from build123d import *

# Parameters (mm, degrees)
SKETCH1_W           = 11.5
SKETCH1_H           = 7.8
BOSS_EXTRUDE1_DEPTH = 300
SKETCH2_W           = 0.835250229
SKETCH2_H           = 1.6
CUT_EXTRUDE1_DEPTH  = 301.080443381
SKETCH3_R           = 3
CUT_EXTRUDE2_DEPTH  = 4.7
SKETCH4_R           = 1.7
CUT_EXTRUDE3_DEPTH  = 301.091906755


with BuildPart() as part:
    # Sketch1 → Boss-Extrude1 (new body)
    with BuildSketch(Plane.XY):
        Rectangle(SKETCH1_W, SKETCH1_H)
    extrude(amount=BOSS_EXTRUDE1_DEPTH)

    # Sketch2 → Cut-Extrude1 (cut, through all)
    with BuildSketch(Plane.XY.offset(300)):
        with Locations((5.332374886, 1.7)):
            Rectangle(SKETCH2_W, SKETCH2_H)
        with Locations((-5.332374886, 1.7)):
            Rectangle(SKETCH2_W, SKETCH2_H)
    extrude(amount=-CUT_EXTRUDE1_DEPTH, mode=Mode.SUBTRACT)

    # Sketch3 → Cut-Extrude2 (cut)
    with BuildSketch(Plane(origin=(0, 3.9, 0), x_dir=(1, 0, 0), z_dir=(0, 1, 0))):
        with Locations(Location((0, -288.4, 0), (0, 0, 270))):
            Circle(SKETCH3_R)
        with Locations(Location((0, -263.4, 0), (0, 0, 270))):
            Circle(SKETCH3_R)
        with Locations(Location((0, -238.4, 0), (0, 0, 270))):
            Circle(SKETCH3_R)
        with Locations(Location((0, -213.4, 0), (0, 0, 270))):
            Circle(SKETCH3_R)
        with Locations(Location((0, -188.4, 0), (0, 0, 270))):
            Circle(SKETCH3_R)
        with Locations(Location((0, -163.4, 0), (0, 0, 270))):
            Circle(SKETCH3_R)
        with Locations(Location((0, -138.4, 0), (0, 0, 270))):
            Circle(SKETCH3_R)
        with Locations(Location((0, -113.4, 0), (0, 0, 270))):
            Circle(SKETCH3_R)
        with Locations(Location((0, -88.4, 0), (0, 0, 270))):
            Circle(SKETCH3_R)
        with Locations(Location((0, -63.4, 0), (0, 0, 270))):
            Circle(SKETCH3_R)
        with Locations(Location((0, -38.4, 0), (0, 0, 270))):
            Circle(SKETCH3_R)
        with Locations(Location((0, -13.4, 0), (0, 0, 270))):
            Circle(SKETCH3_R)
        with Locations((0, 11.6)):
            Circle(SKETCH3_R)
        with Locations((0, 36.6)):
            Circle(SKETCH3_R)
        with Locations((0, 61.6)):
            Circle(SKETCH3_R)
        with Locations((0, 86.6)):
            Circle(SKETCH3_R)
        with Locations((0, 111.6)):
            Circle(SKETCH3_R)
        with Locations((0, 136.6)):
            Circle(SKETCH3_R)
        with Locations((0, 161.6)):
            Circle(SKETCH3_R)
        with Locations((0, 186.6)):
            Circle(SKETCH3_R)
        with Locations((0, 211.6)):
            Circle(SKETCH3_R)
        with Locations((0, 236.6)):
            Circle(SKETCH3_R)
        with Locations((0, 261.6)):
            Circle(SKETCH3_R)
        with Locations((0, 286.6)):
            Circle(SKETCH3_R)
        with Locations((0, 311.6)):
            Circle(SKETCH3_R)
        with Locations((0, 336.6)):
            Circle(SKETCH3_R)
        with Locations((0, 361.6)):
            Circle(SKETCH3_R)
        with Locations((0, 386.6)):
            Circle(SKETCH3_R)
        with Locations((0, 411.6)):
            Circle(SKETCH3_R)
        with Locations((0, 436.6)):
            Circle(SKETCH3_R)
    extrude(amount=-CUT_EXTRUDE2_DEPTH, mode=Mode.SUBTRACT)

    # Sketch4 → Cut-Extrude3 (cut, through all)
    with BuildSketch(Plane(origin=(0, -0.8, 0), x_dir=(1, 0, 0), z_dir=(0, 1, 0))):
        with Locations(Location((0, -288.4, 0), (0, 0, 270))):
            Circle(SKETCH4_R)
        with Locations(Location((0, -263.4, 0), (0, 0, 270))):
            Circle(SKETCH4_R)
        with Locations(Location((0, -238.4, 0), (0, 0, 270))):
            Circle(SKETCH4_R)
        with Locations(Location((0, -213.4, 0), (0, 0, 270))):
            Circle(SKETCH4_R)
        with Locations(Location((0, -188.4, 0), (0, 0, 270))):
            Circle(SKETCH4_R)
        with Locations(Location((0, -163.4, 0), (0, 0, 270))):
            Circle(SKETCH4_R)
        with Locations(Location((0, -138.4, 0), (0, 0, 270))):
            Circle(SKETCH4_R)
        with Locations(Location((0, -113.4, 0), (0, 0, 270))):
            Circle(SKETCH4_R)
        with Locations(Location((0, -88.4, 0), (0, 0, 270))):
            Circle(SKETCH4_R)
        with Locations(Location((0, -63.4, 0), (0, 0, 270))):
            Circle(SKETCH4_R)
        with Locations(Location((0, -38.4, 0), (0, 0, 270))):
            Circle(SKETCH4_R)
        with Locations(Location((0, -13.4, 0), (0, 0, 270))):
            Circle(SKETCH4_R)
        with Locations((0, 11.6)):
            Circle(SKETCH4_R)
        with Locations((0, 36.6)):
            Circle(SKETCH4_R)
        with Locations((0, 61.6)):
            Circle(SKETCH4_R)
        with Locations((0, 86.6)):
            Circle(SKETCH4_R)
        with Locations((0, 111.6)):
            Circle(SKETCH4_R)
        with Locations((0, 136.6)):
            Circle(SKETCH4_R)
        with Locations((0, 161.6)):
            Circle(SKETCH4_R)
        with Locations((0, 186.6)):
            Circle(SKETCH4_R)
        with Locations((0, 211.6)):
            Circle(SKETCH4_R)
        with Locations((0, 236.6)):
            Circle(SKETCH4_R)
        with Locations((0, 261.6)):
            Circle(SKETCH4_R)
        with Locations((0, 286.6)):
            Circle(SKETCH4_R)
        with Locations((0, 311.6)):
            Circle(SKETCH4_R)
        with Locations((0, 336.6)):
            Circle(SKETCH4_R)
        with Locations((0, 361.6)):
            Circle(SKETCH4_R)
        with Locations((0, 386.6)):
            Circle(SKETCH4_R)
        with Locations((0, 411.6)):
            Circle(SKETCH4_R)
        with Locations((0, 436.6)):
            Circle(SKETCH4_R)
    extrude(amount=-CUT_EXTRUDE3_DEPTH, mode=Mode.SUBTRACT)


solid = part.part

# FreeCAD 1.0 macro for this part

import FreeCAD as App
import Part
import Sketcher
from FreeCAD import Vector
Q = App.Units.Quantity

doc = App.newDocument("Part")
body = doc.addObject("PartDesign::Body", "Body")

sketch1 = body.newObject("Sketcher::SketchObject", "Sketch")
sketch1.AttachmentSupport = (doc.getObject("XY_Plane"), [""])
sketch1.MapMode = "FlatFace"
sketch1.addGeometry([
    Part.LineSegment(Vector(-5.75, 3.9, 0), Vector(-5.75, -3.9, 0)),
    Part.LineSegment(Vector(-5.75, -3.9, 0), Vector(5.75, -3.9, 0)),
    Part.LineSegment(Vector(5.75, -3.9, 0), Vector(5.75, 3.9, 0)),
    Part.LineSegment(Vector(5.75, 3.9, 0), Vector(-5.75, 3.9, 0)),
], False)
sketch1.addConstraint([
    Sketcher.Constraint("Coincident", 0, 2, 1, 1),
    Sketcher.Constraint("Coincident", 1, 2, 2, 1),
    Sketcher.Constraint("Coincident", 2, 2, 3, 1),
    Sketcher.Constraint("Coincident", 3, 2, 0, 1),
    Sketcher.Constraint("Vertical", 0),
    Sketcher.Constraint("Horizontal", 1),
    Sketcher.Constraint("Vertical", 2),
    Sketcher.Constraint("Horizontal", 3),
    Sketcher.Constraint("Symmetric", 0, 2, 2, 2, -1, 1),
    Sketcher.Constraint("DistanceX", 1, 1, 1, 2, Q("11.5 mm")),
    Sketcher.Constraint("DistanceY", 0, 2, 0, 1, Q("7.8 mm")),
])
pad1 = body.newObject("PartDesign::Pad", "Pad")
pad1.Profile = sketch1
pad1.Length = 300

sketch2 = body.newObject("Sketcher::SketchObject", "Sketch001")
sketch2.AttachmentSupport = (doc.getObject("XY_Plane"), [""])
sketch2.MapMode = "FlatFace"
sketch2.AttachmentOffset = App.Placement(Vector(0, 0, 300), App.Rotation())
sketch2.addGeometry([
    Part.LineSegment(Vector(4.91475, 2.5, 0), Vector(4.91475, 0.9, 0)),
    Part.LineSegment(Vector(4.91475, 0.9, 0), Vector(5.75, 0.9, 0)),
    Part.LineSegment(Vector(5.75, 0.9, 0), Vector(5.75, 2.5, 0)),
    Part.LineSegment(Vector(5.75, 2.5, 0), Vector(4.91475, 2.5, 0)),
    Part.LineSegment(Vector(-5.75, 2.5, 0), Vector(-5.75, 0.9, 0)),
    Part.LineSegment(Vector(-5.75, 0.9, 0), Vector(-4.91475, 0.9, 0)),
    Part.LineSegment(Vector(-4.91475, 0.9, 0), Vector(-4.91475, 2.5, 0)),
    Part.LineSegment(Vector(-4.91475, 2.5, 0), Vector(-5.75, 2.5, 0)),
], False)
sketch2.addConstraint([
    Sketcher.Constraint("Coincident", 0, 2, 1, 1),
    Sketcher.Constraint("Coincident", 1, 2, 2, 1),
    Sketcher.Constraint("Coincident", 2, 2, 3, 1),
    Sketcher.Constraint("Coincident", 3, 2, 0, 1),
    Sketcher.Constraint("Coincident", 4, 2, 5, 1),
    Sketcher.Constraint("Coincident", 5, 2, 6, 1),
    Sketcher.Constraint("Coincident", 6, 2, 7, 1),
    Sketcher.Constraint("Coincident", 7, 2, 4, 1),
    Sketcher.Constraint("Vertical", 0),
    Sketcher.Constraint("Horizontal", 1),
    Sketcher.Constraint("Vertical", 2),
    Sketcher.Constraint("Horizontal", 3),
    Sketcher.Constraint("Vertical", 4),
    Sketcher.Constraint("Horizontal", 5),
    Sketcher.Constraint("Vertical", 6),
    Sketcher.Constraint("Horizontal", 7),
    Sketcher.Constraint("Symmetric", 1, 2, 4, 2, -2),
    Sketcher.Constraint("Symmetric", 3, 2, 6, 2, -2),
    Sketcher.Constraint("DistanceY", 0, 2, 0, 1, Q("1.6 mm")),
    Sketcher.Constraint("DistanceY", -1, 1, 0, 2, Q("0.9 mm")),
    Sketcher.Constraint("DistanceX", 4, 2, 1, 2, Q("11.5 mm")),
    Sketcher.Constraint("DistanceX", 1, 1, 1, 2, Q("0.83525 mm")),
])
pocket1 = body.newObject("PartDesign::Pocket", "Pocket")
pocket1.Profile = sketch2
pocket1.Type = "ThroughAll"

sketch3 = body.newObject("Sketcher::SketchObject", "Sketch002")
sketch3.AttachmentSupport = (doc.getObject("XZ_Plane"), [""])
sketch3.MapMode = "FlatFace"
sketch3.AttachmentOffset = App.Placement(Vector(0, 0, -3.9), App.Rotation())
sketch3.addGeometry([
    Part.Circle(Vector(0, 288.4, 0), Vector(0, 0, 1), 3),
    Part.Circle(Vector(0, 263.4, 0), Vector(0, 0, 1), 3),
    Part.Circle(Vector(0, 238.4, 0), Vector(0, 0, 1), 3),
    Part.Circle(Vector(0, 213.4, 0), Vector(0, 0, 1), 3),
    Part.Circle(Vector(0, 188.4, 0), Vector(0, 0, 1), 3),
    Part.Circle(Vector(0, 163.4, 0), Vector(0, 0, 1), 3),
    Part.Circle(Vector(0, 138.4, 0), Vector(0, 0, 1), 3),
    Part.Circle(Vector(0, 113.4, 0), Vector(0, 0, 1), 3),
    Part.Circle(Vector(0, 88.4, 0), Vector(0, 0, 1), 3),
    Part.Circle(Vector(0, 63.4, 0), Vector(0, 0, 1), 3),
    Part.Circle(Vector(0, 38.4, 0), Vector(0, 0, 1), 3),
    Part.Circle(Vector(0, 13.4, 0), Vector(0, 0, 1), 3),
    Part.Circle(Vector(0, -11.6, 0), Vector(0, 0, 1), 3),
    Part.Circle(Vector(0, -36.6, 0), Vector(0, 0, 1), 3),
    Part.Circle(Vector(0, -61.6, 0), Vector(0, 0, 1), 3),
    Part.Circle(Vector(0, -86.6, 0), Vector(0, 0, 1), 3),
    Part.Circle(Vector(0, -111.6, 0), Vector(0, 0, 1), 3),
    Part.Circle(Vector(0, -136.6, 0), Vector(0, 0, 1), 3),
    Part.Circle(Vector(0, -161.6, 0), Vector(0, 0, 1), 3),
    Part.Circle(Vector(0, -186.6, 0), Vector(0, 0, 1), 3),
    Part.Circle(Vector(0, -211.6, 0), Vector(0, 0, 1), 3),
    Part.Circle(Vector(0, -236.6, 0), Vector(0, 0, 1), 3),
    Part.Circle(Vector(0, -261.6, 0), Vector(0, 0, 1), 3),
    Part.Circle(Vector(0, -286.6, 0), Vector(0, 0, 1), 3),
    Part.Circle(Vector(0, -311.6, 0), Vector(0, 0, 1), 3),
    Part.Circle(Vector(0, -336.6, 0), Vector(0, 0, 1), 3),
    Part.Circle(Vector(0, -361.6, 0), Vector(0, 0, 1), 3),
    Part.Circle(Vector(0, -386.6, 0), Vector(0, 0, 1), 3),
    Part.Circle(Vector(0, -411.6, 0), Vector(0, 0, 1), 3),
    Part.Circle(Vector(0, -436.6, 0), Vector(0, 0, 1), 3),
], False)
sketch3.addConstraint([
    Sketcher.Constraint("Equal", 0, 1),
    Sketcher.Constraint("Equal", 1, 2),
    Sketcher.Constraint("Equal", 2, 3),
    Sketcher.Constraint("Equal", 3, 4),
    Sketcher.Constraint("Equal", 4, 5),
    Sketcher.Constraint("Equal", 5, 6),
    Sketcher.Constraint("Equal", 6, 7),
    Sketcher.Constraint("Equal", 7, 8),
    Sketcher.Constraint("Equal", 8, 9),
    Sketcher.Constraint("Equal", 9, 10),
    Sketcher.Constraint("Equal", 10, 11),
    Sketcher.Constraint("Equal", 11, 12),
    Sketcher.Constraint("Equal", 12, 13),
    Sketcher.Constraint("Equal", 13, 14),
    Sketcher.Constraint("Equal", 14, 15),
    Sketcher.Constraint("Equal", 15, 16),
    Sketcher.Constraint("Equal", 16, 17),
    Sketcher.Constraint("Equal", 17, 18),
    Sketcher.Constraint("Equal", 18, 19),
    Sketcher.Constraint("Equal", 19, 20),
    Sketcher.Constraint("Equal", 20, 21),
    Sketcher.Constraint("Equal", 21, 22),
    Sketcher.Constraint("Equal", 22, 23),
    Sketcher.Constraint("Equal", 23, 24),
    Sketcher.Constraint("Equal", 24, 25),
    Sketcher.Constraint("Equal", 25, 26),
    Sketcher.Constraint("Equal", 26, 27),
    Sketcher.Constraint("Equal", 27, 28),
    Sketcher.Constraint("Equal", 28, 29),
    Sketcher.Constraint("PointOnObject", 0, 3, -2),
    Sketcher.Constraint("PointOnObject", 1, 3, -2),
    Sketcher.Constraint("PointOnObject", 2, 3, -2),
    Sketcher.Constraint("PointOnObject", 3, 3, -2),
    Sketcher.Constraint("PointOnObject", 4, 3, -2),
    Sketcher.Constraint("PointOnObject", 5, 3, -2),
    Sketcher.Constraint("PointOnObject", 6, 3, -2),
    Sketcher.Constraint("PointOnObject", 7, 3, -2),
    Sketcher.Constraint("PointOnObject", 8, 3, -2),
    Sketcher.Constraint("PointOnObject", 9, 3, -2),
    Sketcher.Constraint("PointOnObject", 10, 3, -2),
    Sketcher.Constraint("PointOnObject", 11, 3, -2),
    Sketcher.Constraint("PointOnObject", 12, 3, -2),
    Sketcher.Constraint("PointOnObject", 13, 3, -2),
    Sketcher.Constraint("PointOnObject", 14, 3, -2),
    Sketcher.Constraint("PointOnObject", 15, 3, -2),
    Sketcher.Constraint("PointOnObject", 16, 3, -2),
    Sketcher.Constraint("PointOnObject", 17, 3, -2),
    Sketcher.Constraint("PointOnObject", 18, 3, -2),
    Sketcher.Constraint("PointOnObject", 19, 3, -2),
    Sketcher.Constraint("PointOnObject", 20, 3, -2),
    Sketcher.Constraint("PointOnObject", 21, 3, -2),
    Sketcher.Constraint("PointOnObject", 22, 3, -2),
    Sketcher.Constraint("PointOnObject", 23, 3, -2),
    Sketcher.Constraint("PointOnObject", 24, 3, -2),
    Sketcher.Constraint("PointOnObject", 25, 3, -2),
    Sketcher.Constraint("PointOnObject", 26, 3, -2),
    Sketcher.Constraint("PointOnObject", 27, 3, -2),
    Sketcher.Constraint("PointOnObject", 28, 3, -2),
    Sketcher.Constraint("PointOnObject", 29, 3, -2),
    Sketcher.Constraint("Diameter", 0, Q("6 mm")),
    Sketcher.Constraint("DistanceY", 1, 3, 0, 3, Q("25 mm")),
    Sketcher.Constraint("DistanceY", 2, 3, 1, 3, Q("25 mm")),
    Sketcher.Constraint("DistanceY", 3, 3, 2, 3, Q("25 mm")),
    Sketcher.Constraint("DistanceY", 4, 3, 3, 3, Q("25 mm")),
    Sketcher.Constraint("DistanceY", 5, 3, 4, 3, Q("25 mm")),
    Sketcher.Constraint("DistanceY", 6, 3, 5, 3, Q("25 mm")),
    Sketcher.Constraint("DistanceY", 7, 3, 6, 3, Q("25 mm")),
    Sketcher.Constraint("DistanceY", 8, 3, 7, 3, Q("25 mm")),
    Sketcher.Constraint("DistanceY", 9, 3, 8, 3, Q("25 mm")),
    Sketcher.Constraint("DistanceY", 10, 3, 9, 3, Q("25 mm")),
    Sketcher.Constraint("DistanceY", 11, 3, 10, 3, Q("25 mm")),
    Sketcher.Constraint("DistanceY", 12, 3, 11, 3, Q("25 mm")),
    Sketcher.Constraint("DistanceY", 13, 3, 12, 3, Q("25 mm")),
    Sketcher.Constraint("DistanceY", 14, 3, 13, 3, Q("25 mm")),
    Sketcher.Constraint("DistanceY", 15, 3, 14, 3, Q("25 mm")),
    Sketcher.Constraint("DistanceY", 16, 3, 15, 3, Q("25 mm")),
    Sketcher.Constraint("DistanceY", 17, 3, 16, 3, Q("25 mm")),
    Sketcher.Constraint("DistanceY", 18, 3, 17, 3, Q("25 mm")),
    Sketcher.Constraint("DistanceY", 19, 3, 18, 3, Q("25 mm")),
    Sketcher.Constraint("DistanceY", 20, 3, 19, 3, Q("25 mm")),
    Sketcher.Constraint("DistanceY", 21, 3, 20, 3, Q("25 mm")),
    Sketcher.Constraint("DistanceY", 22, 3, 21, 3, Q("25 mm")),
    Sketcher.Constraint("DistanceY", 23, 3, 22, 3, Q("25 mm")),
    Sketcher.Constraint("DistanceY", 24, 3, 23, 3, Q("25 mm")),
    Sketcher.Constraint("DistanceY", 25, 3, 24, 3, Q("25 mm")),
    Sketcher.Constraint("DistanceY", 26, 3, 25, 3, Q("25 mm")),
    Sketcher.Constraint("DistanceY", 27, 3, 26, 3, Q("25 mm")),
    Sketcher.Constraint("DistanceY", 28, 3, 27, 3, Q("25 mm")),
    Sketcher.Constraint("DistanceY", 29, 3, 28, 3, Q("25 mm")),
    Sketcher.Constraint("DistanceY", -1, 1, 0, 3, Q("288.4 mm")),
])
pocket2 = body.newObject("PartDesign::Pocket", "Pocket001")
pocket2.Profile = sketch3
pocket2.Length = 4.7
pocket2.Reversed = True

sketch4 = body.newObject("Sketcher::SketchObject", "Sketch003")
sketch4.AttachmentSupport = (doc.getObject("XZ_Plane"), [""])
sketch4.MapMode = "FlatFace"
sketch4.AttachmentOffset = App.Placement(Vector(0, 0, 0.8), App.Rotation())
sketch4.addGeometry([
    Part.Circle(Vector(0, 288.4, 0), Vector(0, 0, 1), 1.7),
    Part.Circle(Vector(0, 263.4, 0), Vector(0, 0, 1), 1.7),
    Part.Circle(Vector(0, 238.4, 0), Vector(0, 0, 1), 1.7),
    Part.Circle(Vector(0, 213.4, 0), Vector(0, 0, 1), 1.7),
    Part.Circle(Vector(0, 188.4, 0), Vector(0, 0, 1), 1.7),
    Part.Circle(Vector(0, 163.4, 0), Vector(0, 0, 1), 1.7),
    Part.Circle(Vector(0, 138.4, 0), Vector(0, 0, 1), 1.7),
    Part.Circle(Vector(0, 113.4, 0), Vector(0, 0, 1), 1.7),
    Part.Circle(Vector(0, 88.4, 0), Vector(0, 0, 1), 1.7),
    Part.Circle(Vector(0, 63.4, 0), Vector(0, 0, 1), 1.7),
    Part.Circle(Vector(0, 38.4, 0), Vector(0, 0, 1), 1.7),
    Part.Circle(Vector(0, 13.4, 0), Vector(0, 0, 1), 1.7),
    Part.Circle(Vector(0, -11.6, 0), Vector(0, 0, 1), 1.7),
    Part.Circle(Vector(0, -36.6, 0), Vector(0, 0, 1), 1.7),
    Part.Circle(Vector(0, -61.6, 0), Vector(0, 0, 1), 1.7),
    Part.Circle(Vector(0, -86.6, 0), Vector(0, 0, 1), 1.7),
    Part.Circle(Vector(0, -111.6, 0), Vector(0, 0, 1), 1.7),
    Part.Circle(Vector(0, -136.6, 0), Vector(0, 0, 1), 1.7),
    Part.Circle(Vector(0, -161.6, 0), Vector(0, 0, 1), 1.7),
    Part.Circle(Vector(0, -186.6, 0), Vector(0, 0, 1), 1.7),
    Part.Circle(Vector(0, -211.6, 0), Vector(0, 0, 1), 1.7),
    Part.Circle(Vector(0, -236.6, 0), Vector(0, 0, 1), 1.7),
    Part.Circle(Vector(0, -261.6, 0), Vector(0, 0, 1), 1.7),
    Part.Circle(Vector(0, -286.6, 0), Vector(0, 0, 1), 1.7),
    Part.Circle(Vector(0, -311.6, 0), Vector(0, 0, 1), 1.7),
    Part.Circle(Vector(0, -336.6, 0), Vector(0, 0, 1), 1.7),
    Part.Circle(Vector(0, -361.6, 0), Vector(0, 0, 1), 1.7),
    Part.Circle(Vector(0, -386.6, 0), Vector(0, 0, 1), 1.7),
    Part.Circle(Vector(0, -411.6, 0), Vector(0, 0, 1), 1.7),
    Part.Circle(Vector(0, -436.6, 0), Vector(0, 0, 1), 1.7),
], False)
sketch4.addConstraint([
    Sketcher.Constraint("Equal", 0, 1),
    Sketcher.Constraint("Equal", 1, 2),
    Sketcher.Constraint("Equal", 2, 3),
    Sketcher.Constraint("Equal", 3, 4),
    Sketcher.Constraint("Equal", 4, 5),
    Sketcher.Constraint("Equal", 5, 6),
    Sketcher.Constraint("Equal", 6, 7),
    Sketcher.Constraint("Equal", 7, 8),
    Sketcher.Constraint("Equal", 8, 9),
    Sketcher.Constraint("Equal", 9, 10),
    Sketcher.Constraint("Equal", 10, 11),
    Sketcher.Constraint("Equal", 11, 12),
    Sketcher.Constraint("Equal", 12, 13),
    Sketcher.Constraint("Equal", 13, 14),
    Sketcher.Constraint("Equal", 14, 15),
    Sketcher.Constraint("Equal", 15, 16),
    Sketcher.Constraint("Equal", 16, 17),
    Sketcher.Constraint("Equal", 17, 18),
    Sketcher.Constraint("Equal", 18, 19),
    Sketcher.Constraint("Equal", 19, 20),
    Sketcher.Constraint("Equal", 20, 21),
    Sketcher.Constraint("Equal", 21, 22),
    Sketcher.Constraint("Equal", 22, 23),
    Sketcher.Constraint("Equal", 23, 24),
    Sketcher.Constraint("Equal", 24, 25),
    Sketcher.Constraint("Equal", 25, 26),
    Sketcher.Constraint("Equal", 26, 27),
    Sketcher.Constraint("Equal", 27, 28),
    Sketcher.Constraint("Equal", 28, 29),
    Sketcher.Constraint("PointOnObject", 0, 3, -2),
    Sketcher.Constraint("PointOnObject", 1, 3, -2),
    Sketcher.Constraint("PointOnObject", 2, 3, -2),
    Sketcher.Constraint("PointOnObject", 3, 3, -2),
    Sketcher.Constraint("PointOnObject", 4, 3, -2),
    Sketcher.Constraint("PointOnObject", 5, 3, -2),
    Sketcher.Constraint("PointOnObject", 6, 3, -2),
    Sketcher.Constraint("PointOnObject", 7, 3, -2),
    Sketcher.Constraint("PointOnObject", 8, 3, -2),
    Sketcher.Constraint("PointOnObject", 9, 3, -2),
    Sketcher.Constraint("PointOnObject", 10, 3, -2),
    Sketcher.Constraint("PointOnObject", 11, 3, -2),
    Sketcher.Constraint("PointOnObject", 12, 3, -2),
    Sketcher.Constraint("PointOnObject", 13, 3, -2),
    Sketcher.Constraint("PointOnObject", 14, 3, -2),
    Sketcher.Constraint("PointOnObject", 15, 3, -2),
    Sketcher.Constraint("PointOnObject", 16, 3, -2),
    Sketcher.Constraint("PointOnObject", 17, 3, -2),
    Sketcher.Constraint("PointOnObject", 18, 3, -2),
    Sketcher.Constraint("PointOnObject", 19, 3, -2),
    Sketcher.Constraint("PointOnObject", 20, 3, -2),
    Sketcher.Constraint("PointOnObject", 21, 3, -2),
    Sketcher.Constraint("PointOnObject", 22, 3, -2),
    Sketcher.Constraint("PointOnObject", 23, 3, -2),
    Sketcher.Constraint("PointOnObject", 24, 3, -2),
    Sketcher.Constraint("PointOnObject", 25, 3, -2),
    Sketcher.Constraint("PointOnObject", 26, 3, -2),
    Sketcher.Constraint("PointOnObject", 27, 3, -2),
    Sketcher.Constraint("PointOnObject", 28, 3, -2),
    Sketcher.Constraint("PointOnObject", 29, 3, -2),
    Sketcher.Constraint("Diameter", 0, Q("3.4 mm")),
    Sketcher.Constraint("DistanceY", 1, 3, 0, 3, Q("25 mm")),
    Sketcher.Constraint("DistanceY", 2, 3, 1, 3, Q("25 mm")),
    Sketcher.Constraint("DistanceY", 3, 3, 2, 3, Q("25 mm")),
    Sketcher.Constraint("DistanceY", 4, 3, 3, 3, Q("25 mm")),
    Sketcher.Constraint("DistanceY", 5, 3, 4, 3, Q("25 mm")),
    Sketcher.Constraint("DistanceY", 6, 3, 5, 3, Q("25 mm")),
    Sketcher.Constraint("DistanceY", 7, 3, 6, 3, Q("25 mm")),
    Sketcher.Constraint("DistanceY", 8, 3, 7, 3, Q("25 mm")),
    Sketcher.Constraint("DistanceY", 9, 3, 8, 3, Q("25 mm")),
    Sketcher.Constraint("DistanceY", 10, 3, 9, 3, Q("25 mm")),
    Sketcher.Constraint("DistanceY", 11, 3, 10, 3, Q("25 mm")),
    Sketcher.Constraint("DistanceY", 12, 3, 11, 3, Q("25 mm")),
    Sketcher.Constraint("DistanceY", 13, 3, 12, 3, Q("25 mm")),
    Sketcher.Constraint("DistanceY", 14, 3, 13, 3, Q("25 mm")),
    Sketcher.Constraint("DistanceY", 15, 3, 14, 3, Q("25 mm")),
    Sketcher.Constraint("DistanceY", 16, 3, 15, 3, Q("25 mm")),
    Sketcher.Constraint("DistanceY", 17, 3, 16, 3, Q("25 mm")),
    Sketcher.Constraint("DistanceY", 18, 3, 17, 3, Q("25 mm")),
    Sketcher.Constraint("DistanceY", 19, 3, 18, 3, Q("25 mm")),
    Sketcher.Constraint("DistanceY", 20, 3, 19, 3, Q("25 mm")),
    Sketcher.Constraint("DistanceY", 21, 3, 20, 3, Q("25 mm")),
    Sketcher.Constraint("DistanceY", 22, 3, 21, 3, Q("25 mm")),
    Sketcher.Constraint("DistanceY", 23, 3, 22, 3, Q("25 mm")),
    Sketcher.Constraint("DistanceY", 24, 3, 23, 3, Q("25 mm")),
    Sketcher.Constraint("DistanceY", 25, 3, 24, 3, Q("25 mm")),
    Sketcher.Constraint("DistanceY", 26, 3, 25, 3, Q("25 mm")),
    Sketcher.Constraint("DistanceY", 27, 3, 26, 3, Q("25 mm")),
    Sketcher.Constraint("DistanceY", 28, 3, 27, 3, Q("25 mm")),
    Sketcher.Constraint("DistanceY", 29, 3, 28, 3, Q("25 mm")),
    Sketcher.Constraint("DistanceY", -1, 1, 0, 3, Q("288.4 mm")),
])
pocket3 = body.newObject("PartDesign::Pocket", "Pocket002")
pocket3.Profile = sketch4
pocket3.Type = "ThroughAll"
pocket3.Reversed = True

doc.recompute()
